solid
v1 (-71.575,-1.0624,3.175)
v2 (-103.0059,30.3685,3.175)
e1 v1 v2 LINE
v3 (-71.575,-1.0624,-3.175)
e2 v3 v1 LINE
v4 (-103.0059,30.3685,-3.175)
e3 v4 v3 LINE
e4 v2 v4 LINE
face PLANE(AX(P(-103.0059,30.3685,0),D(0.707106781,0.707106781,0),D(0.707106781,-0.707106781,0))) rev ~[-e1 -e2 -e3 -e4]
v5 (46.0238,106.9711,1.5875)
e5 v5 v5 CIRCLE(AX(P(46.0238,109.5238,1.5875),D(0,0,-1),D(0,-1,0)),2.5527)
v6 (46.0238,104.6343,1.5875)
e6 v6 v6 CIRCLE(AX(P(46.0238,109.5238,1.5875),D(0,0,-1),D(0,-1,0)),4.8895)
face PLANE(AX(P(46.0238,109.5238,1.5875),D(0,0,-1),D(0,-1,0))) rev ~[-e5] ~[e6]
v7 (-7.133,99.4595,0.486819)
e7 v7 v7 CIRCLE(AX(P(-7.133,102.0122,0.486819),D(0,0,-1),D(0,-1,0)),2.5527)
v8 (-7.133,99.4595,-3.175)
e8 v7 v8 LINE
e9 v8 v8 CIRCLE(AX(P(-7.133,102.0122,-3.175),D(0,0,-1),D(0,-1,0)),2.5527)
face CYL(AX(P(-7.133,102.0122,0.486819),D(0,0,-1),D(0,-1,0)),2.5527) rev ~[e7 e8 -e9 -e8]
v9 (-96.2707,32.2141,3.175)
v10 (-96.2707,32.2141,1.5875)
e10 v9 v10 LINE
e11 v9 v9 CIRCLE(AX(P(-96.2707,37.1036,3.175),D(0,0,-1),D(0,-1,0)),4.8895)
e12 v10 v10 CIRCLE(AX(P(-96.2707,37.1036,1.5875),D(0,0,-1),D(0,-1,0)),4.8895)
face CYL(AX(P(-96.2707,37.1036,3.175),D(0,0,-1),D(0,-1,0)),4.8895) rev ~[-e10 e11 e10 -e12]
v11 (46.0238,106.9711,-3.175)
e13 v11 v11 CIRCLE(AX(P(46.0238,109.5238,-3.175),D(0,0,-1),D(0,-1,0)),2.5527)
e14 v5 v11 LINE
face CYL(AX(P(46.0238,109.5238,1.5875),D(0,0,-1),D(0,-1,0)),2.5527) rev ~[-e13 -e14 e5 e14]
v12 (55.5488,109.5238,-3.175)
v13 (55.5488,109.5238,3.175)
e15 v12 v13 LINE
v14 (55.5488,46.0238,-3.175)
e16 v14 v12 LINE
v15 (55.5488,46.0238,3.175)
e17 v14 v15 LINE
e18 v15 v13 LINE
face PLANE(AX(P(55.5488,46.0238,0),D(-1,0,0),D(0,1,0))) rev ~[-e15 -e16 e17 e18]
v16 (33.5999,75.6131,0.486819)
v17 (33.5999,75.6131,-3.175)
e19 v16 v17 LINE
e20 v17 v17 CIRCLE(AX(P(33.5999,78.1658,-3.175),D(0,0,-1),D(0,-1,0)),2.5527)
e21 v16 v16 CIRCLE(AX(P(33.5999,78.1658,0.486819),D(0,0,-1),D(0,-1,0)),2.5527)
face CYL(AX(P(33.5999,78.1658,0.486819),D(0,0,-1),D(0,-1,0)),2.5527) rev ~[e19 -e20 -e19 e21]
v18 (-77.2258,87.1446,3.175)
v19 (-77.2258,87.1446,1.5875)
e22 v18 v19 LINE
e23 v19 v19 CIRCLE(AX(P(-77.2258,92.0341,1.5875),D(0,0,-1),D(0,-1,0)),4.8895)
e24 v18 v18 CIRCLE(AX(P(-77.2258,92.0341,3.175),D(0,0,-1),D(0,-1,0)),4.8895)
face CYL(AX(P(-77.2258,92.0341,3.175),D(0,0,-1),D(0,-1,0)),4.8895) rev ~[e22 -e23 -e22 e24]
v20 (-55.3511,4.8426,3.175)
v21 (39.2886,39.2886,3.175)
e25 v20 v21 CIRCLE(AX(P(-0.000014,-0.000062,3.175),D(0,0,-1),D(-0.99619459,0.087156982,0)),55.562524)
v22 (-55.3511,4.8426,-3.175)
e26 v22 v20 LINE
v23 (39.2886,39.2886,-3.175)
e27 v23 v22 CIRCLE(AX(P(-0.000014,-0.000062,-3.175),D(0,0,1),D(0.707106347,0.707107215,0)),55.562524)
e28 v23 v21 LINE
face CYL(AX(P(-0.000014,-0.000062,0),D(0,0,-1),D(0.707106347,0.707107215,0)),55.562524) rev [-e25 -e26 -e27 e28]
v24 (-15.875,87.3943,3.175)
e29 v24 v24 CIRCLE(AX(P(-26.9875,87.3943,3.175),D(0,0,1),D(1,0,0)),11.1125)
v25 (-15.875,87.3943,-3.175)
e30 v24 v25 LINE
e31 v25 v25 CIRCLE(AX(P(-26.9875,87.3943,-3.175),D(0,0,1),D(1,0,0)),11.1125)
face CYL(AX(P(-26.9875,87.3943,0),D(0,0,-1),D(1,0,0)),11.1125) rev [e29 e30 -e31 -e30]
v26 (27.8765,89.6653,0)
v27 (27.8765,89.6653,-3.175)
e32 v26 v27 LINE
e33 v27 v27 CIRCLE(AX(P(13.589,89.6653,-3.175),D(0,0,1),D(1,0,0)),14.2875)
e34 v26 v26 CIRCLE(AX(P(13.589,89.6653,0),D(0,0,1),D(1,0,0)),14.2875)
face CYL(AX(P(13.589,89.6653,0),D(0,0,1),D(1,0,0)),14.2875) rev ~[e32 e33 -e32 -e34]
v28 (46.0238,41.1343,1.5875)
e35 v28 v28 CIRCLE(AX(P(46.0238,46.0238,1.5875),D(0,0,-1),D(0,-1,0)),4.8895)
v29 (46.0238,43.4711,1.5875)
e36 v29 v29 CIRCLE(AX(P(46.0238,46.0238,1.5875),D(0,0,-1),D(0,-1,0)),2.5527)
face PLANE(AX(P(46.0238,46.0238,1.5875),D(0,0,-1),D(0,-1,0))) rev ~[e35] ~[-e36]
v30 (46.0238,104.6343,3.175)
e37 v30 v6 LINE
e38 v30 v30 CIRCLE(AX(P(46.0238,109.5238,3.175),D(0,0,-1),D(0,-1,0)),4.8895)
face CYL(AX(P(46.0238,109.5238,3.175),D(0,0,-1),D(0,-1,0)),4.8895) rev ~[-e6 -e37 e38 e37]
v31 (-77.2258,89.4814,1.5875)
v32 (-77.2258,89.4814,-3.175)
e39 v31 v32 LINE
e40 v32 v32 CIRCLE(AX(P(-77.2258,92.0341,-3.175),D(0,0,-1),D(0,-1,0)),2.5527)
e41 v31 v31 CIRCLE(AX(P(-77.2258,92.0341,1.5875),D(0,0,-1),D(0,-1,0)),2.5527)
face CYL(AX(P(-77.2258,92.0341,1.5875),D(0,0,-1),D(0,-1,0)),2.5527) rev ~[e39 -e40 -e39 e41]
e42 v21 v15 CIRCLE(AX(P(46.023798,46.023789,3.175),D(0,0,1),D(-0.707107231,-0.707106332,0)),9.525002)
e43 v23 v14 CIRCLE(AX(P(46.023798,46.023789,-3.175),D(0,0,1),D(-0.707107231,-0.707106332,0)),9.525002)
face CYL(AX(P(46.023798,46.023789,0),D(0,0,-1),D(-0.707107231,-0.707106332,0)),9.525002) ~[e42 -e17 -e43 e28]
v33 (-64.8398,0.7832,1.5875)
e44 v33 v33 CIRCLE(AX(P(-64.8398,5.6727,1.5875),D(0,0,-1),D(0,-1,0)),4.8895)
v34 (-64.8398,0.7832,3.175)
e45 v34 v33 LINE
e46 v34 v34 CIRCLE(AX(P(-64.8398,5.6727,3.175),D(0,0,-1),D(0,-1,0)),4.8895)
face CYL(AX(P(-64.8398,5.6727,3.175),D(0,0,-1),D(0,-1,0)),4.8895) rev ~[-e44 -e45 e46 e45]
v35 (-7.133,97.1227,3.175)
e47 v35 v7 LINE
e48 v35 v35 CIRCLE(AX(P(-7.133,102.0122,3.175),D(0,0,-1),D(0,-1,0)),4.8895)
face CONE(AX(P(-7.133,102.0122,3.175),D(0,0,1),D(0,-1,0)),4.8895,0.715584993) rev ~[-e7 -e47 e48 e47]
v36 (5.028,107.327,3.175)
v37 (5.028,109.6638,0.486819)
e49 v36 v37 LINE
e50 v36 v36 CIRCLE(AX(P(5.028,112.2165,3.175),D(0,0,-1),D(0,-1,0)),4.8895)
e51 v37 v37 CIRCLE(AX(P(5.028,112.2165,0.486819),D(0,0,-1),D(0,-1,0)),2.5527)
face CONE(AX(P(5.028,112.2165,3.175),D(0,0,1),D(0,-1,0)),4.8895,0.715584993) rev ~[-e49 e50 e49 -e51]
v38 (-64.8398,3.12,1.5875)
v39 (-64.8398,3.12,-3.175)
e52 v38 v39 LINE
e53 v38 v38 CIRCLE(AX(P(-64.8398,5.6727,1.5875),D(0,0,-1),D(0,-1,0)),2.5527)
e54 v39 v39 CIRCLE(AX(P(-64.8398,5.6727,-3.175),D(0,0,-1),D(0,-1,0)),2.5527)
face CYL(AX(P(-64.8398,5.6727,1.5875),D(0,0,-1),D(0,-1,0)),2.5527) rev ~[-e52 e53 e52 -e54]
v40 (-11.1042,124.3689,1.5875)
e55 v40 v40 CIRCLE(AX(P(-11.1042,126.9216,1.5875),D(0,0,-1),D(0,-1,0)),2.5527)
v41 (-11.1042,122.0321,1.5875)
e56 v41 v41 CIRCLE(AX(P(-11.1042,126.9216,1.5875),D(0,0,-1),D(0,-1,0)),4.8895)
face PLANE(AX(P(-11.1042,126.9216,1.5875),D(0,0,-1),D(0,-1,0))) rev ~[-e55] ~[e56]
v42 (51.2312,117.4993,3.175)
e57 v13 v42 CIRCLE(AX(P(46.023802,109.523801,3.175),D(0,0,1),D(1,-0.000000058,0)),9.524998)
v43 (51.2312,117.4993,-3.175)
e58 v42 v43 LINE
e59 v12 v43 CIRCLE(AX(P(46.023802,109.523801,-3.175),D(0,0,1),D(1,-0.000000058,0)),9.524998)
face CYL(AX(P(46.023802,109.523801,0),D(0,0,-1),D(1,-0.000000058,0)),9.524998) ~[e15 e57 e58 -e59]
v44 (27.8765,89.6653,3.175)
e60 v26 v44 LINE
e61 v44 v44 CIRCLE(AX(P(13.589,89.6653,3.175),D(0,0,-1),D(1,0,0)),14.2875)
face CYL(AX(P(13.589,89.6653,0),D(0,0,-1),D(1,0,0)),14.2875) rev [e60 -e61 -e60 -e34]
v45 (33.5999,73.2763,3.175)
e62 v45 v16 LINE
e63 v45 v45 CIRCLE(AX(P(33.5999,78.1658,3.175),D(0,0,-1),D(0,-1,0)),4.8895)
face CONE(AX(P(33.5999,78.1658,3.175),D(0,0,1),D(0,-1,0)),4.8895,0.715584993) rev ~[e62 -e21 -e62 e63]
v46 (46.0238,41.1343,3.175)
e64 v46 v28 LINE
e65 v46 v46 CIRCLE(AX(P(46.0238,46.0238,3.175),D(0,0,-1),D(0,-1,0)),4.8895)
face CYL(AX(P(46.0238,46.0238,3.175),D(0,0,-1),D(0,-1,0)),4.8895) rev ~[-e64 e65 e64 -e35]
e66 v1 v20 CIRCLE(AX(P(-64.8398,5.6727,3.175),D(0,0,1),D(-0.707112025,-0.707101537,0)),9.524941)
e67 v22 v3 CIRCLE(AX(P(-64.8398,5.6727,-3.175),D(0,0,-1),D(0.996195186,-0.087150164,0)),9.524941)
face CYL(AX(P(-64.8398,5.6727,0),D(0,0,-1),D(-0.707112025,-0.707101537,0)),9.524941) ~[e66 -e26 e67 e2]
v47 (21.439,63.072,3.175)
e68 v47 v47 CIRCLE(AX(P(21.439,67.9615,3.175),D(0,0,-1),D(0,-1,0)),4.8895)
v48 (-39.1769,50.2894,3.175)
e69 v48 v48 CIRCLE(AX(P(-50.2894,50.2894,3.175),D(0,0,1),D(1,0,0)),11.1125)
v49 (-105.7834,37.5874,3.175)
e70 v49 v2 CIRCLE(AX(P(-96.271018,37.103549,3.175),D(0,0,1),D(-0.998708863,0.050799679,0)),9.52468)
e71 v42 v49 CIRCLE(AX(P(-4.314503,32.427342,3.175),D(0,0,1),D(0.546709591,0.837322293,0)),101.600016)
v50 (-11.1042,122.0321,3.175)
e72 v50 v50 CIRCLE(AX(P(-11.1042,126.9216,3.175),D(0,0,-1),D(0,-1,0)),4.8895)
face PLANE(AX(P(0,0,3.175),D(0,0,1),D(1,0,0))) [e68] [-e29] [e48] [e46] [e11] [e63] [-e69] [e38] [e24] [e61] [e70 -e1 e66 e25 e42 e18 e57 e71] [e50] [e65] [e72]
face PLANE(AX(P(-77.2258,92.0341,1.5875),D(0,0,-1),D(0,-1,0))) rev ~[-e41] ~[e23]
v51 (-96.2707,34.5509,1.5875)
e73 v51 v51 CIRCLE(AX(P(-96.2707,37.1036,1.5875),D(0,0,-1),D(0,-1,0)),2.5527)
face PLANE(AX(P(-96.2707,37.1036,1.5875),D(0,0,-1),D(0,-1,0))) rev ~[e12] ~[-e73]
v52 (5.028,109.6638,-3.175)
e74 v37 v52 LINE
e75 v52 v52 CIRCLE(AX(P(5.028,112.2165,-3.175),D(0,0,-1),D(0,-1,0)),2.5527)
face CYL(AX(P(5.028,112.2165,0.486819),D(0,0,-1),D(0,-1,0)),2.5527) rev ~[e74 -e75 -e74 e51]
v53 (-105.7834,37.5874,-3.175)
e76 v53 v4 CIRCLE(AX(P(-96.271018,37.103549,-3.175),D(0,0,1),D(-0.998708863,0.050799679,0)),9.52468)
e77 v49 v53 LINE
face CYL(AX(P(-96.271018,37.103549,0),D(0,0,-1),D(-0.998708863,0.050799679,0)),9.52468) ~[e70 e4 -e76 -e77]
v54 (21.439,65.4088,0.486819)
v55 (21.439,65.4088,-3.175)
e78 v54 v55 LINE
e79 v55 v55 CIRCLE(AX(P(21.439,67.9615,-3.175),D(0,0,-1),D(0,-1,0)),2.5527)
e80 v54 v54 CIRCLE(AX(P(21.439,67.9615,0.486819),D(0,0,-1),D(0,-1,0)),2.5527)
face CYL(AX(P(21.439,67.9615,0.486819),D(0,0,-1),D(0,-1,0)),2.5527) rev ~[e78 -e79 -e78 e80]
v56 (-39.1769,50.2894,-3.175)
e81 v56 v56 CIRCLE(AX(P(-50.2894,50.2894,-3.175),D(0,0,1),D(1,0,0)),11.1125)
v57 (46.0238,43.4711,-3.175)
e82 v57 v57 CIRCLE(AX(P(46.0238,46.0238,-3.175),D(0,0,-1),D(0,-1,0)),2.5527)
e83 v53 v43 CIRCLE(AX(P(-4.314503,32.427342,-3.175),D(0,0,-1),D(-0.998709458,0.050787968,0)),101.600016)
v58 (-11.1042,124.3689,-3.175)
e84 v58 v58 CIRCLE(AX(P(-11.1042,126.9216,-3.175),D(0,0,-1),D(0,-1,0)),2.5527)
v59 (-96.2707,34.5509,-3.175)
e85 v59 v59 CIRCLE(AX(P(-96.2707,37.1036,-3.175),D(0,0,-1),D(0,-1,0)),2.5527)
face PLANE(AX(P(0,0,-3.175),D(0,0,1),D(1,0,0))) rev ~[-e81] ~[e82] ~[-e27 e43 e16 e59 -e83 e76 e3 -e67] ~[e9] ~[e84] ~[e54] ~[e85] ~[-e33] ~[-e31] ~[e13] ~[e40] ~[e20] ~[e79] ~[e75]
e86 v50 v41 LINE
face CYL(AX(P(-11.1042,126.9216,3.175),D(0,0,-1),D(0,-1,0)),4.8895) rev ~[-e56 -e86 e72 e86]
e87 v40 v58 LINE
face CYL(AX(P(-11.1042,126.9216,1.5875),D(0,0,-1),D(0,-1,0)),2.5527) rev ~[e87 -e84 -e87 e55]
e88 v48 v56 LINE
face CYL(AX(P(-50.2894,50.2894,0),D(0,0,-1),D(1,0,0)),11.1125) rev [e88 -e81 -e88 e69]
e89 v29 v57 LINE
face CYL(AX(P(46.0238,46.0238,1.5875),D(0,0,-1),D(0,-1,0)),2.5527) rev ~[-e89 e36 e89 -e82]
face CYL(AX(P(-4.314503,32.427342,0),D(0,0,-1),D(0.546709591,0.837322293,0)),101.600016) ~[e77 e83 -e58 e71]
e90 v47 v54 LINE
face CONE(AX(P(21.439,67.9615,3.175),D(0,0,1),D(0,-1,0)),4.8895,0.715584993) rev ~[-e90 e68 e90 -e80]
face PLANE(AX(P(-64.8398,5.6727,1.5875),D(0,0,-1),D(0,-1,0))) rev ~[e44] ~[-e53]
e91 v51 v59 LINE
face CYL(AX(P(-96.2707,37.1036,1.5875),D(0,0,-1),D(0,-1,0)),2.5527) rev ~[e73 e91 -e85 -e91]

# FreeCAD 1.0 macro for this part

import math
import FreeCAD as App
import Part
import Sketcher
from FreeCAD import Vector
Q = App.Units.Quantity

doc = App.newDocument("Part")
params = doc.addObject("Spreadsheet::Sheet", "Params")
for row, (alias, value) in enumerate([
    ("sketch1_radius", "4 in"),
    ("sketch1_diameter", "1.125 in"),
    ("sketch1_diameter2", "0.875 in"),
    ("sketch1_diameter3", "0.875 in"),
    ("sketch1_height", "2.5 in"),
    ("pad1_length", "0.25 in"),
    ("sketch2_diameter", "0.201 in"),
    ("hole_diameter", "0.201 in"),
    ("hole_csink_diameter", "0.385 in"),
    ("sketch3_diameter", "0.201 in"),
    ("hole2_diameter", "0.201 in"),
    ("hole2_cbore_diameter", "0.385 in"),
    ("hole2_cbore_depth", "0.0625 in"),
], start=1):
    params.set(f"A{row}", alias)
    params.set(f"B{row}", "=" + value)
    params.setAlias(f"B{row}", alias)

body = doc.addObject("PartDesign::Body", "Body")

sketch1 = doc.addObject("Sketcher::SketchObject", "Sketch")
body.addObject(sketch1)
sketch1.AttachmentSupport = (doc.XY_Plane, [""])
sketch1.MapMode = "FlatFace"
sketch1.addGeometry([
    Part.LineSegment(Vector(-103.0059, 30.3685, 0), Vector(-71.575, -1.0624, 0)),
    Part.ArcOfCircle(Part.Circle(Vector(-64.8398, 5.6727, 0), Vector(0, 0, 1), 9.52494), math.radians(-135.000425), math.radians(-4.999678)),
    Part.ArcOfCircle(Part.Circle(Vector(0, 0, 0), Vector(0, 0, 1), 55.562471), math.radians(45), math.radians(174.999994)),
    Part.ArcOfCircle(Part.Circle(Vector(46.0238, 46.0238, 0), Vector(0, 0, 1), 9.525011), math.radians(-135), math.radians(0)),
    Part.LineSegment(Vector(55.5488, 46.0238, 0), Vector(55.5488, 109.5238, 0)),
    Part.ArcOfCircle(Part.Circle(Vector(46.0238, 109.5238, 0), Vector(0, 0, 1), 9.525), math.radians(0), math.radians(56.858493)),
    Part.ArcOfCircle(Part.Circle(Vector(-4.3145, 32.4274, 0), Vector(0, 0, 1), 101.599965), math.radians(56.858415), math.radians(177.088844)),
    Part.ArcOfCircle(Part.Circle(Vector(-96.2707, 37.1036, 0), Vector(0, 0, 1), 9.524995), math.radians(177.088541), math.radians(224.999575)),
    Part.Circle(Vector(13.589, 89.6653, 0), Vector(0, 0, 1), 14.2875),
    Part.Circle(Vector(-50.2894, 50.2894, 0), Vector(0, 0, 1), 11.1125),
    Part.Circle(Vector(-26.9875, 87.3943, 0), Vector(0, 0, 1), 11.1125),
], False)
sketch1.addConstraint([
    Sketcher.Constraint("Coincident", 0, 2, 1, 1),
    Sketcher.Constraint("Coincident", 1, 2, 2, 2),
    Sketcher.Constraint("Coincident", 2, 1, 3, 1),
    Sketcher.Constraint("Coincident", 3, 2, 4, 1),
    Sketcher.Constraint("Coincident", 4, 2, 5, 1),
    Sketcher.Constraint("Coincident", 5, 2, 6, 1),
    Sketcher.Constraint("Coincident", 6, 2, 7, 1),
    Sketcher.Constraint("Coincident", 7, 2, 0, 1),
    Sketcher.Constraint("Vertical", 4),
    Sketcher.Constraint("Coincident", 2, 3, -1, 1),
    Sketcher.Constraint("Radius", 6, Q("4 in")),
    Sketcher.Constraint("Diameter", 8, Q("1.125 in")),
    Sketcher.Constraint("Diameter", 9, Q("0.875 in")),
    Sketcher.Constraint("Diameter", 10, Q("0.875 in")),
    Sketcher.Constraint("DistanceY", 4, 1, 4, 2, Q("2.5 in")),
    Sketcher.Constraint("Radius", 1, Q("0.375 in")),
    Sketcher.Constraint("Radius", 3, Q("0.375 in")),
    Sketcher.Constraint("Radius", 5, Q("0.375 in")),
    Sketcher.Constraint("Radius", 7, Q("0.375 in")),
    Sketcher.Constraint("DistanceY", 3, 3, 5, 3, Q("2.5 in")),
    Sketcher.Constraint("DistanceY", 3, 2, 5, 3, Q("2.5 in")),
    Sketcher.Constraint("Distance", 0, Q("1.75 in")),
    Sketcher.Constraint("DistanceX", -1, 1, 8, 3, Q("0.535 in")),
    Sketcher.Constraint("DistanceX", 10, 3, -1, 1, Q("1.0625 in")),
    Sketcher.Constraint("Radius", 2, Q("2.1875 in")),
    Sketcher.Constraint("DistanceX", 7, 3, 1, 2, Q("1.611 in")),
    Sketcher.Constraint("DistanceY", 4, 2, 5, 2, Q("0.314 in")),
    Sketcher.Constraint("DistanceX", 9, 3, -1, 1, Q("1.9799 in")),
    Sketcher.Constraint("DistanceY", -1, 1, 9, 3, Q("1.9799 in")),
    Sketcher.Constraint("DistanceX", -1, 1, 2, 1, Q("1.5468 in")),
    Sketcher.Constraint("DistanceX", 6, 2, -1, 1, Q("4.1647 in")),
    Sketcher.Constraint("DistanceY", -1, 1, 7, 2, Q("1.1956 in")),
    Sketcher.Constraint("DistanceX", 1, 3, 3, 3, Q("4.3647 in")),
    Sketcher.Constraint("DistanceY", 6, 3, 3, 3, Q("0.5353 in")),
    Sketcher.Constraint("DistanceY", 6, 3, 7, 3, Q("0.1841 in")),
    Sketcher.Constraint("DistanceY", 1, 3, 8, 3, Q("3.3068 in")),
    Sketcher.Constraint("DistanceY", 10, 3, 8, 3, Q("0.0894 in")),
    Sketcher.Constraint("DistanceY", 0, 2, 7, 3, Q("1.5026 in")),
])
sketch1.setExpression("Constraints[10]", "Params.sketch1_radius")
sketch1.setExpression("Constraints[11]", "Params.sketch1_diameter")
sketch1.setExpression("Constraints[12]", "Params.sketch1_diameter2")
sketch1.setExpression("Constraints[13]", "Params.sketch1_diameter3")
sketch1.setExpression("Constraints[14]", "Params.sketch1_height")
pad1 = doc.addObject("PartDesign::Pad", "Pad")
body.addObject(pad1)
pad1.Profile = sketch1
pad1.setExpression("Length", "Params.pad1_length")
pad1.Midplane = True

sketch2 = doc.addObject("Sketcher::SketchObject", "Sketch001")
body.addObject(sketch2)
sketch2.AttachmentSupport = (doc.XY_Plane, [""])
sketch2.MapMode = "FlatFace"
sketch2.AttachmentOffset = App.Placement(Vector(0, 0, 0.125 * 25.4), App.Rotation())
sketch2.addGeometry([
    Part.Circle(Vector(-7.133, 102.0122, 0), Vector(0, 0, 1), 2.5527),
    Part.Circle(Vector(5.028, 112.2165, 0), Vector(0, 0, 1), 2.5527),
    Part.Circle(Vector(21.439, 67.9615, 0), Vector(0, 0, 1), 2.5527),
    Part.Circle(Vector(33.5999, 78.1658, 0), Vector(0, 0, 1), 2.5527),
], False)
sketch2.addConstraint([
    Sketcher.Constraint("Equal", 0, 1),
    Sketcher.Constraint("Equal", 1, 2),
    Sketcher.Constraint("Equal", 2, 3),
    Sketcher.Constraint("Diameter", 0, Q("0.201 in")),
    Sketcher.Constraint("DistanceY", -1, 1, 3, 3, Q("3.0774 in")),
    Sketcher.Constraint("DistanceX", 1, 3, 2, 3, Q("0.6461 in")),
    Sketcher.Constraint("DistanceX", 0, 3, -1, 1, Q("7.133 mm")),
    Sketcher.Constraint("DistanceY", -1, 1, 0, 3, Q("102.0122 mm")),
    Sketcher.Constraint("DistanceX", -1, 1, 1, 3, Q("5.028 mm")),
    Sketcher.Constraint("DistanceY", -1, 1, 1, 3, Q("112.2165 mm")),
    Sketcher.Constraint("DistanceY", -1, 1, 2, 3, Q("67.9615 mm")),
    Sketcher.Constraint("DistanceX", -1, 1, 3, 3, Q("33.6 mm")),
])
sketch2.setExpression("Constraints[3]", "Params.sketch2_diameter")
doc.recompute()
hole = doc.addObject("PartDesign::Hole", "Hole")
body.addObject(hole)
hole.Profile = sketch2
hole.ThreadType = "None"
hole.setExpression("Diameter", "Params.hole_diameter")
hole.DepthType = "ThroughAll"
hole.HoleCutType = "Countersink"
hole.setExpression("HoleCutDiameter", "Params.hole_csink_diameter")
hole.HoleCutCountersinkAngle = 82

sketch3 = doc.addObject("Sketcher::SketchObject", "Sketch002")
body.addObject(sketch3)
sketch3.AttachmentSupport = (doc.XY_Plane, [""])
sketch3.MapMode = "FlatFace"
sketch3.AttachmentOffset = App.Placement(Vector(0, 0, 0.125 * 25.4), App.Rotation())
sketch3.addGeometry([
    Part.Circle(Vector(-96.2707, 37.1036, 0), Vector(0, 0, 1), 2.5527),
    Part.Circle(Vector(46.0238, 109.5238, 0), Vector(0, 0, 1), 2.5527),
    Part.Circle(Vector(-11.1042, 126.9216, 0), Vector(0, 0, 1), 2.5527),
    Part.Circle(Vector(-77.2258, 92.0341, 0), Vector(0, 0, 1), 2.5527),
    Part.Circle(Vector(-64.8398, 5.6727, 0), Vector(0, 0, 1), 2.5527),
    Part.Circle(Vector(46.0238, 46.0238, 0), Vector(0, 0, 1), 2.5527),
], False)
sketch3.addConstraint([
    Sketcher.Constraint("Equal", 0, 1),
    Sketcher.Constraint("Equal", 1, 2),
    Sketcher.Constraint("Equal", 2, 3),
    Sketcher.Constraint("Equal", 3, 4),
    Sketcher.Constraint("Equal", 4, 5),
    Sketcher.Constraint("Vertical", 1, 3, 5, 3),
    Sketcher.Constraint("Diameter", 0, Q("0.201 in")),
    Sketcher.Constraint("DistanceY", 5, 3, 1, 3, Q("2.5 in")),
    Sketcher.Constraint("DistanceX", 0, 3, 2, 3, Q("3.353 in")),
    Sketcher.Constraint("DistanceY", -1, 1, 3, 3, Q("3.6234 in")),
    Sketcher.Constraint("DistanceY", 0, 3, 1, 3, Q("2.8512 in")),
    Sketcher.Constraint("DistanceX", 0, 3, 3, 3, Q("0.7498 in")),
    Sketcher.Constraint("DistanceX", 4, 3, 1, 3, Q("4.3647 in")),
    Sketcher.Constraint("DistanceX", 0, 3, -1, 1, Q("96.2707 mm")),
    Sketcher.Constraint("DistanceY", -1, 1, 0, 3, Q("37.1036 mm")),
    Sketcher.Constraint("DistanceX", -1, 1, 1, 3, Q("46.0238 mm")),
    Sketcher.Constraint("DistanceY", -1, 1, 2, 3, Q("126.9216 mm")),
    Sketcher.Constraint("DistanceY", -1, 1, 4, 3, Q("5.6727 mm")),
])
sketch3.setExpression("Constraints[6]", "Params.sketch3_diameter")
doc.recompute()
hole2 = doc.addObject("PartDesign::Hole", "Hole001")
body.addObject(hole2)
hole2.Profile = sketch3
hole2.ThreadType = "None"
hole2.setExpression("Diameter", "Params.hole2_diameter")
hole2.DepthType = "ThroughAll"
hole2.HoleCutType = "Counterbore"
hole2.setExpression("HoleCutDiameter", "Params.hole2_cbore_diameter")
hole2.setExpression("HoleCutDepth", "Params.hole2_cbore_depth")

doc.recompute()
